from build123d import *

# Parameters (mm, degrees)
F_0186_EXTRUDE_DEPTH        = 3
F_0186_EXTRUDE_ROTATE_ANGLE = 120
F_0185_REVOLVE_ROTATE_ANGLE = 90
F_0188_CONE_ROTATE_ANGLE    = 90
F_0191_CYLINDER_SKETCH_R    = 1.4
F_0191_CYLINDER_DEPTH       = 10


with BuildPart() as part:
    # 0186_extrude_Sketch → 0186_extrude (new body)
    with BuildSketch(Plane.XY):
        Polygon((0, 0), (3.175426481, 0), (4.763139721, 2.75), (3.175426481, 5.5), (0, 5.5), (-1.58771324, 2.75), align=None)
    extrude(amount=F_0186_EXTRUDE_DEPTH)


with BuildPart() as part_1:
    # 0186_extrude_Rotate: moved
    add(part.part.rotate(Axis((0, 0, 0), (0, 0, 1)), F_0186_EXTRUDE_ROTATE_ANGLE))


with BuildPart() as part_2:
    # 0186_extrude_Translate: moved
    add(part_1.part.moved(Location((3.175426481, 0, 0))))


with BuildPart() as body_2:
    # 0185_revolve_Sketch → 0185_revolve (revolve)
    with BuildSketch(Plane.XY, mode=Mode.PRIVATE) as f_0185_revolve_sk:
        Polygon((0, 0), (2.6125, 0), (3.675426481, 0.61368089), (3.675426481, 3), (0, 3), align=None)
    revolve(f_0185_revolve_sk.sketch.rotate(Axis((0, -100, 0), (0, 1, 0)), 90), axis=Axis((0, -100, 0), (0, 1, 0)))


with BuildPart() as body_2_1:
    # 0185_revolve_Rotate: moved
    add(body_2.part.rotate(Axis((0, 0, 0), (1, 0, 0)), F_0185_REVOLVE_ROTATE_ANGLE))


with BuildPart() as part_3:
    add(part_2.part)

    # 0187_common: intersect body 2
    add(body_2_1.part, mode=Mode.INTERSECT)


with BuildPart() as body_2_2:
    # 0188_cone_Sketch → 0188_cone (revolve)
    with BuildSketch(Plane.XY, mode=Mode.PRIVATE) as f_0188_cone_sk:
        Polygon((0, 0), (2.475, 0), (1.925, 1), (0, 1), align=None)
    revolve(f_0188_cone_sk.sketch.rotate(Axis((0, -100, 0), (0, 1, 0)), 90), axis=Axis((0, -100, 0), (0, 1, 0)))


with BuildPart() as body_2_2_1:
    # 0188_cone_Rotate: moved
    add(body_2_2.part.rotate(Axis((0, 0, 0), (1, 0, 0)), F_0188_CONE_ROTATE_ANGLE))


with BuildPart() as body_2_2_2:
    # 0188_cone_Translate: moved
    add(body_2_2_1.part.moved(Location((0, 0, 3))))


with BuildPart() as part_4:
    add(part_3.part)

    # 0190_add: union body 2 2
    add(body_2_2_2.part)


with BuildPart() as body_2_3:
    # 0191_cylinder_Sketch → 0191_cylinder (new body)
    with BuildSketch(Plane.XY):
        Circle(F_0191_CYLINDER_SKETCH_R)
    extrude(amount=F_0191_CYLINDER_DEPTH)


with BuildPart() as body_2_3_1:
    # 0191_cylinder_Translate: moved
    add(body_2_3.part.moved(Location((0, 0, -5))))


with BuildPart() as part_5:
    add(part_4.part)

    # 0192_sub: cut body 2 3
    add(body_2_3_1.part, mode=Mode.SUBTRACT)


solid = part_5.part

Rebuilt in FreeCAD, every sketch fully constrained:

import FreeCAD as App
import Part
import Sketcher
Q = App.Units.Quantity

doc = App.newDocument("Part")
params = doc.addObject("Spreadsheet::Sheet", "Params")
for row, (alias, value) in enumerate([
    ("pad1_length", "3 mm"),
    ("sketch2_height", "3 mm"),
    ("revolution_angle", "360 deg"),
    ("sketch3_height", "1 mm"),
    ("revolution2_angle", "360 deg"),
    ("sketch4_diameter", "2.8 mm"),
    ("pad2_length", "10 mm"),
], start=1):
    params.set(f"A{row}", alias)
    params.set(f"B{row}", "=" + value)
    params.setAlias(f"B{row}", alias)

body = doc.addObject("PartDesign::Body", "Body")

sketch1 = doc.addObject("Sketcher::SketchObject", "Sketch")
body.addObject(sketch1)
sketch1.AttachmentSupport = (doc.XY_Plane, [""])
sketch1.MapMode = "FlatFace"
sketch1.addGeometry([
    Part.LineSegment(App.Vector(0, 0, 0), App.Vector(3.2, 0, 0)),
    Part.LineSegment(App.Vector(3.2, 0, 0), App.Vector(4.8, 2.8, 0)),
    Part.LineSegment(App.Vector(4.8, 2.8, 0), App.Vector(3.2, 5.5, 0)),
    Part.LineSegment(App.Vector(3.2, 5.5, 0), App.Vector(0, 5.5, 0)),
    Part.LineSegment(App.Vector(0, 5.5, 0), App.Vector(-1.6, 2.8, 0)),
    Part.LineSegment(App.Vector(-1.6, 2.8, 0), App.Vector(0, 0, 0)),
], False)
sketch1.addConstraint([
    Sketcher.Constraint("Coincident", 0, 2, 1, 1),
    Sketcher.Constraint("Coincident", 1, 2, 2, 1),
    Sketcher.Constraint("Coincident", 2, 2, 3, 1),
    Sketcher.Constraint("Coincident", 3, 2, 4, 1),
    Sketcher.Constraint("Coincident", 4, 2, 5, 1),
    Sketcher.Constraint("Coincident", 5, 2, 0, 1),
    Sketcher.Constraint("Horizontal", 0),
    Sketcher.Constraint("Horizontal", 3),
    Sketcher.Constraint("Coincident", 5, 2, -1, 1),
    Sketcher.Constraint("PointOnObject", 3, 2, -2),
    Sketcher.Constraint("Parallel", 1, 4),
    Sketcher.Constraint("Parallel", 2, 5),
    Sketcher.Constraint("Horizontal", 1, 2, 4, 2),
    Sketcher.Constraint("Vertical", 0, 2, 2, 2),
    Sketcher.Constraint("Angle", 1, Q("60 deg")),
    Sketcher.Constraint("DistanceY", -1, 1, 2, 2, Q("5.5 mm")),
    Sketcher.Constraint("DistanceX", 0, 1, 0, 2, Q("3.175426 mm")),
])
pad1 = doc.addObject("PartDesign::Pad", "Pad")
body.addObject(pad1)
pad1.Profile = sketch1
pad1.setExpression("Length", "Params.pad1_length")
body2 = doc.addObject("PartDesign::Body", "Body001")
doc.recompute()

body.Placement = App.Placement(App.Vector(0, 0, 0), App.Rotation(App.Vector(0, 0, 1), 120))
boolean = doc.addObject("PartDesign::Boolean", "Boolean")
body2.addObject(boolean)
boolean.Type = "Fuse"
boolean.addObjects([body])
body3 = doc.addObject("PartDesign::Body", "Body002")
doc.recompute()

body2.Placement = App.Placement(App.Vector(3.175426, 0, 0), App.Rotation(App.Vector(0, 0, 1), 0))
boolean2 = doc.addObject("PartDesign::Boolean", "Boolean001")
body3.addObject(boolean2)
boolean2.Type = "Fuse"
boolean2.addObjects([body2])
body4 = doc.addObject("PartDesign::Body", "Body003")

sketch2 = doc.addObject("Sketcher::SketchObject", "Sketch001")
body4.addObject(sketch2)
sketch2.AttachmentSupport = (doc.getObject("XY_Plane003"), [""])
sketch2.MapMode = "FlatFace"
sketch2.addGeometry([
    Part.LineSegment(App.Vector(0, 0, 0), App.Vector(2.6, 0, 0)),
    Part.LineSegment(App.Vector(2.6, 0, 0), App.Vector(3.7, 0.6, 0)),
    Part.LineSegment(App.Vector(3.7, 0.6, 0), App.Vector(3.7, 3, 0)),
    Part.LineSegment(App.Vector(3.7, 3, 0), App.Vector(0, 3, 0)),
    Part.LineSegment(App.Vector(0, 3, 0), App.Vector(0, 0, 0)),
], False)
sketch2.addConstraint([
    Sketcher.Constraint("Coincident", 0, 2, 1, 1),
    Sketcher.Constraint("Coincident", 1, 2, 2, 1),
    Sketcher.Constraint("Coincident", 2, 2, 3, 1),
    Sketcher.Constraint("Coincident", 3, 2, 4, 1),
    Sketcher.Constraint("Coincident", 4, 2, 0, 1),
    Sketcher.Constraint("Horizontal", 0),
    Sketcher.Constraint("Vertical", 2),
    Sketcher.Constraint("Horizontal", 3),
    Sketcher.Constraint("Vertical", 4),
    Sketcher.Constraint("Coincident", 4, 2, -1, 1),
    Sketcher.Constraint("DistanceY", 4, 2, 4, 1, Q("3 mm")),
    Sketcher.Constraint("Angle", 1, Q("30 deg")),
    Sketcher.Constraint("DistanceX", 0, 1, 0, 2, Q("2.6125 mm")),
    Sketcher.Constraint("DistanceY", 2, 1, 2, 2, Q("2.386319 mm")),
])
sketch2.setExpression("Constraints[10]", "Params.sketch2_height")
revolution = doc.addObject("PartDesign::Revolution", "Revolution")
body4.addObject(revolution)
revolution.Profile = sketch2
revolution.ReferenceAxis = (sketch2, ["V_Axis"])
revolution.setExpression("Angle", "Params.revolution_angle")
body5 = doc.addObject("PartDesign::Body", "Body004")
doc.recompute()

body4.Placement = App.Placement(App.Vector(0, 0, 0), App.Rotation(App.Vector(1, 0, 0), 90))
boolean3 = doc.addObject("PartDesign::Boolean", "Boolean002")
body5.addObject(boolean3)
boolean3.Type = "Fuse"
boolean3.addObjects([body4])
doc.recompute()

boolean4 = doc.addObject("PartDesign::Boolean", "Boolean003")
body3.addObject(boolean4)
boolean4.Type = "Common"
boolean4.addObjects([body5])
body6 = doc.addObject("PartDesign::Body", "Body005")

sketch3 = doc.addObject("Sketcher::SketchObject", "Sketch002")
body6.addObject(sketch3)
sketch3.AttachmentSupport = (doc.getObject("XY_Plane005"), [""])
sketch3.MapMode = "FlatFace"
sketch3.addGeometry([
    Part.LineSegment(App.Vector(0, 0, 0), App.Vector(2.5, 0, 0)),
    Part.LineSegment(App.Vector(2.5, 0, 0), App.Vector(1.9, 1, 0)),
    Part.LineSegment(App.Vector(1.9, 1, 0), App.Vector(0, 1, 0)),
    Part.LineSegment(App.Vector(0, 1, 0), App.Vector(0, 0, 0)),
], False)
sketch3.addConstraint([
    Sketcher.Constraint("Coincident", 0, 2, 1, 1),
    Sketcher.Constraint("Coincident", 1, 2, 2, 1),
    Sketcher.Constraint("Coincident", 2, 2, 3, 1),
    Sketcher.Constraint("Coincident", 3, 2, 0, 1),
    Sketcher.Constraint("Horizontal", 0),
    Sketcher.Constraint("Horizontal", 2),
    Sketcher.Constraint("Vertical", 3),
    Sketcher.Constraint("Coincident", 3, 2, -1, 1),
    Sketcher.Constraint("DistanceY", 3, 2, 3, 1, Q("1 mm")),
    Sketcher.Constraint("DistanceX", 0, 1, 0, 2, Q("2.475 mm")),
    Sketcher.Constraint("DistanceX", 2, 2, 2, 1, Q("1.925 mm")),
])
sketch3.setExpression("Constraints[8]", "Params.sketch3_height")
revolution2 = doc.addObject("PartDesign::Revolution", "Revolution001")
body6.addObject(revolution2)
revolution2.Profile = sketch3
revolution2.ReferenceAxis = (sketch3, ["V_Axis"])
revolution2.setExpression("Angle", "Params.revolution2_angle")
body7 = doc.addObject("PartDesign::Body", "Body006")
doc.recompute()

body6.Placement = App.Placement(App.Vector(0, 0, 0), App.Rotation(App.Vector(1, 0, 0), 90))
boolean5 = doc.addObject("PartDesign::Boolean", "Boolean004")
body7.addObject(boolean5)
boolean5.Type = "Fuse"
boolean5.addObjects([body6])
body8 = doc.addObject("PartDesign::Body", "Body007")
doc.recompute()

body7.Placement = App.Placement(App.Vector(0, 0, 3), App.Rotation(App.Vector(0, 0, 1), 0))
boolean6 = doc.addObject("PartDesign::Boolean", "Boolean005")
body8.addObject(boolean6)
boolean6.Type = "Fuse"
boolean6.addObjects([body7])
doc.recompute()

boolean7 = doc.addObject("PartDesign::Boolean", "Boolean006")
body3.addObject(boolean7)
boolean7.Type = "Fuse"
boolean7.addObjects([body8])
body9 = doc.addObject("PartDesign::Body", "Body008")

sketch4 = doc.addObject("Sketcher::SketchObject", "Sketch003")
body9.addObject(sketch4)
sketch4.AttachmentSupport = (doc.getObject("XY_Plane008"), [""])
sketch4.MapMode = "FlatFace"
sketch4.addGeometry(Part.Circle(App.Vector(0, 0, 0), App.Vector(0, 0, 1), 1.4), False)
sketch4.addConstraint([
    Sketcher.Constraint("Coincident", 0, 3, -1, 1),
    Sketcher.Constraint("Diameter", 0, Q("2.8 mm")),
])
sketch4.setExpression("Constraints[1]", "Params.sketch4_diameter")
pad2 = doc.addObject("PartDesign::Pad", "Pad001")
body9.addObject(pad2)
pad2.Profile = sketch4
pad2.setExpression("Length", "Params.pad2_length")
body10 = doc.addObject("PartDesign::Body", "Body009")
doc.recompute()

body9.Placement = App.Placement(App.Vector(0, 0, -5), App.Rotation(App.Vector(0, 0, 1), 0))
boolean8 = doc.addObject("PartDesign::Boolean", "Boolean007")
body10.addObject(boolean8)
boolean8.Type = "Fuse"
boolean8.addObjects([body9])
doc.recompute()

boolean9 = doc.addObject("PartDesign::Boolean", "Boolean008")
body3.addObject(boolean9)
boolean9.Type = "Cut"
boolean9.addObjects([body10])

doc.recompute()
